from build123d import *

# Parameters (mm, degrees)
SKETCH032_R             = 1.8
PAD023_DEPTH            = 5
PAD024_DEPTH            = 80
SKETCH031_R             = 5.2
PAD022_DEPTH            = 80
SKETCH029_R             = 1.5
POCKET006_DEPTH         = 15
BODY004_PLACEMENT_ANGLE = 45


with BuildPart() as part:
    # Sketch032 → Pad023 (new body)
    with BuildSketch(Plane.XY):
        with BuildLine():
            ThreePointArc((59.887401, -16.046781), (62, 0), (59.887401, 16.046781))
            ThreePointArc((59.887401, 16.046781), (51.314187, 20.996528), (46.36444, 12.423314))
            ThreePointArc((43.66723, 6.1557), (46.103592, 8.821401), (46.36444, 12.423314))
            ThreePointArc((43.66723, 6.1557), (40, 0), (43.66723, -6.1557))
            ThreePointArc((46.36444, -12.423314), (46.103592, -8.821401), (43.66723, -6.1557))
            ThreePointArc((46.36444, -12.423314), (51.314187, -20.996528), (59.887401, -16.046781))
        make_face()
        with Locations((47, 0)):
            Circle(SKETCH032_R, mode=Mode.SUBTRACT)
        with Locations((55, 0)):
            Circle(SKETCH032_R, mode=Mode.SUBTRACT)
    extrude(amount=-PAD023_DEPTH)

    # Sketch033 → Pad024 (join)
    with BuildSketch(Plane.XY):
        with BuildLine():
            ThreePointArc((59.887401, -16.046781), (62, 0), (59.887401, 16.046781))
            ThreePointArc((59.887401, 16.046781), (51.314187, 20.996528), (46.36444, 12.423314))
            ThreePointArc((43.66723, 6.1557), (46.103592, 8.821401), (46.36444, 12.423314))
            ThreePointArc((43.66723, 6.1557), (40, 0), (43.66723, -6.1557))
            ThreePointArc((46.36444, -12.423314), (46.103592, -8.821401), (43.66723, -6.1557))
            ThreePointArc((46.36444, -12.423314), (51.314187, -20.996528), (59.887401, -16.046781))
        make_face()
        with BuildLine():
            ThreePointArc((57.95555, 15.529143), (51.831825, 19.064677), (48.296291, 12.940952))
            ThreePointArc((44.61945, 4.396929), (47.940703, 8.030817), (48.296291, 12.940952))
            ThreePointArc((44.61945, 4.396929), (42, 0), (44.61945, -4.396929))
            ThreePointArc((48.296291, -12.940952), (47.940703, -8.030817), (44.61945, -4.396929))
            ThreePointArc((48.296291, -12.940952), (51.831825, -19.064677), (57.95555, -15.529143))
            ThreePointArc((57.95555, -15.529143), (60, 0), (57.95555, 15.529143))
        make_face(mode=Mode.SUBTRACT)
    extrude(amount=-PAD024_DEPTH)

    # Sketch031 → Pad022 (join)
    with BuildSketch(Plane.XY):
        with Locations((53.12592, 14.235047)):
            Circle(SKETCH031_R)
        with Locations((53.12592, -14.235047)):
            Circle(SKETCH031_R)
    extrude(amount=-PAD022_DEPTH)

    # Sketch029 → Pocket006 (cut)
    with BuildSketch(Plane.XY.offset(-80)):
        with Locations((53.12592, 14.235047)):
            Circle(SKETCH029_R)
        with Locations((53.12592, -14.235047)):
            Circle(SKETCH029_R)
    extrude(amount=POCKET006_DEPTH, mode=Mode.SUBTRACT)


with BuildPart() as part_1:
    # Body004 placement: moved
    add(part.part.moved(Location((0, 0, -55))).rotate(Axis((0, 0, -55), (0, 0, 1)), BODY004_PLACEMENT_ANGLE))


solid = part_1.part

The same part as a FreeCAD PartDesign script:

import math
import FreeCAD as App
import Part
import Sketcher
from FreeCAD import Vector
Q = App.Units.Quantity

doc = App.newDocument("Part")
body = doc.addObject("PartDesign::Body", "Body")

# Sketch on XY plane
sketch1 = body.newObject("Sketcher::SketchObject", "Sketch")
sketch1.AttachmentSupport = (doc.getObject("XY_Plane"), [""])
sketch1.MapMode = "FlatFace"
sketch1.addGeometry([
    Part.ArcOfCircle(Part.Circle(Vector(0, 0, 0), Vector(0, 0, 1), 62), math.radians(-15), math.radians(15)),  # 0
    Part.ArcOfCircle(Part.Circle(Vector(53.1, 14.2, 0), Vector(0, 0, 1), 7), math.radians(15), math.radians(195)),  # 1
    Part.ArcOfCircle(Part.Circle(Vector(41, 11, 0), Vector(0, 0, 1), 5.5), math.radians(-62), math.radians(15)),  # 2
    Part.ArcOfCircle(Part.Circle(Vector(47, 0, 0), Vector(0, 0, 1), 7), math.radians(118), math.radians(242)),  # 3
    Part.ArcOfCircle(Part.Circle(Vector(41, -11, 0), Vector(0, 0, 1), 5.5), math.radians(-15), math.radians(62)),  # 4
    Part.ArcOfCircle(Part.Circle(Vector(53.1, -14.2, 0), Vector(0, 0, 1), 7), math.radians(165), math.radians(345)),  # 5
    Part.Circle(Vector(47, 0, 0), Vector(0, 0, 1), 1.8),  # 6
    Part.Circle(Vector(55, 0, 0), Vector(0, 0, 1), 1.8),  # 7
], False)
sketch1.addConstraint([
    Sketcher.Constraint("Tangent", 0, 2, 1, 1),
    Sketcher.Constraint("Tangent", 1, 2, 2, 2),
    Sketcher.Constraint("Tangent", 2, 1, 3, 1),
    Sketcher.Constraint("Tangent", 3, 2, 4, 2),
    Sketcher.Constraint("Tangent", 4, 1, 5, 1),
    Sketcher.Constraint("Tangent", 5, 2, 0, 1),
    Sketcher.Constraint("Coincident", 0, 3, -1, 1),
    Sketcher.Constraint("Coincident", 6, 3, 3, 3),
    Sketcher.Constraint("Equal", 1, 3),
    Sketcher.Constraint("Equal", 2, 4),
    Sketcher.Constraint("Equal", 3, 5),
    Sketcher.Constraint("Equal", 6, 7),
    Sketcher.Constraint("PointOnObject", 3, 3, -1),
    Sketcher.Constraint("PointOnObject", 7, 3, -1),
    Sketcher.Constraint("Vertical", 1, 3, 5, 3),
    Sketcher.Constraint("Radius", 1, Q("7 mm")),
    Sketcher.Constraint("Diameter", 6, Q("3.6 mm")),
    Sketcher.Constraint("DistanceX", -1, 1, 3, 3, Q("47 mm")),
    Sketcher.Constraint("DistanceX", -1, 1, 7, 3, Q("55 mm")),
    Sketcher.Constraint("Radius", 0, Q("61.999995 mm")),
    Sketcher.Constraint("Radius", 2, Q("5.506578 mm")),
    Sketcher.Constraint("DistanceX", -1, 1, 0, 2, Q("59.887401 mm")),
])
pad1 = body.newObject("PartDesign::Pad", "Pad")
pad1.Profile = sketch1
pad1.Length = 5
pad1.Reversed = True

# Sketch on XY plane
sketch2 = body.newObject("Sketcher::SketchObject", "Sketch001")
sketch2.AttachmentSupport = (doc.getObject("XY_Plane"), [""])
sketch2.MapMode = "FlatFace"
sketch2.addGeometry([
    Part.ArcOfCircle(Part.Circle(Vector(0, 0, 0), Vector(0, 0, 1), 62), math.radians(-15), math.radians(15)),  # 0
    Part.ArcOfCircle(Part.Circle(Vector(53, 14, 0), Vector(0, 0, 1), 7), math.radians(15), math.radians(195)),  # 1
    Part.ArcOfCircle(Part.Circle(Vector(41, 11, 0), Vector(0, 0, 1), 6), math.radians(-62), math.radians(15)),  # 2
    Part.ArcOfCircle(Part.Circle(Vector(47, 0, 0), Vector(0, 0, 1), 7), math.radians(118), math.radians(242)),  # 3
    Part.ArcOfCircle(Part.Circle(Vector(41, -11, 0), Vector(0, 0, 1), 6), math.radians(-15), math.radians(62)),  # 4
    Part.ArcOfCircle(Part.Circle(Vector(53, -14, 0), Vector(0, 0, 1), 7), math.radians(165), math.radians(345)),  # 5
    Part.ArcOfCircle(Part.Circle(Vector(53, 14, 0), Vector(0, 0, 1), 5), math.radians(15), math.radians(195)),  # 6
    Part.ArcOfCircle(Part.Circle(Vector(0, 0, 0), Vector(0, 0, 1), 60), math.radians(-15), math.radians(15)),  # 7
    Part.ArcOfCircle(Part.Circle(Vector(53, -14, 0), Vector(0, 0, 1), 5), math.radians(165), math.radians(345)),  # 8
    Part.ArcOfCircle(Part.Circle(Vector(41, -11, 0), Vector(0, 0, 1), 8), math.radians(-15), math.radians(62)),  # 9
    Part.ArcOfCircle(Part.Circle(Vector(47, 0, 0), Vector(0, 0, 1), 5), math.radians(118), math.radians(242)),  # 10
    Part.ArcOfCircle(Part.Circle(Vector(41, 11, 0), Vector(0, 0, 1), 8), math.radians(-62), math.radians(15)),  # 11
], False)
sketch2.addConstraint([
    Sketcher.Constraint("Tangent", 0, 2, 1, 1),
    Sketcher.Constraint("Tangent", 1, 2, 2, 2),
    Sketcher.Constraint("Tangent", 2, 1, 3, 1),
    Sketcher.Constraint("Tangent", 3, 2, 4, 2),
    Sketcher.Constraint("Tangent", 4, 1, 5, 1),
    Sketcher.Constraint("Tangent", 5, 2, 0, 1),
    Sketcher.Constraint("Tangent", 6, 1, 7, 2),
    Sketcher.Constraint("Tangent", 7, 1, 8, 2),
    Sketcher.Constraint("Tangent", 8, 1, 9, 1),
    Sketcher.Constraint("Tangent", 9, 2, 10, 2),
    Sketcher.Constraint("Tangent", 10, 1, 11, 1),
    Sketcher.Constraint("Tangent", 11, 2, 6, 2),
    Sketcher.Constraint("Coincident", 0, 3, -1, 1),
    Sketcher.Constraint("Coincident", 6, 3, 1, 3),
    Sketcher.Constraint("Coincident", 8, 3, 5, 3),
    Sketcher.Constraint("Coincident", 9, 3, 4, 3),
    Sketcher.Constraint("Coincident", 10, 3, 3, 3),
    Sketcher.Constraint("Coincident", 11, 3, 2, 3),
    Sketcher.Constraint("Equal", 1, 3),
    Sketcher.Constraint("Equal", 2, 4),
    Sketcher.Constraint("Equal", 3, 5),
    Sketcher.Constraint("PointOnObject", 3, 3, -1),
    Sketcher.Constraint("Vertical", 1, 3, 5, 3),
    Sketcher.Constraint("Radius", 1, Q("7 mm")),
    Sketcher.Constraint("Radius", 6, Q("5 mm")),
    Sketcher.Constraint("DistanceX", -1, 1, 3, 3, Q("47 mm")),
    Sketcher.Constraint("Radius", 0, Q("61.999995 mm")),
    Sketcher.Constraint("Radius", 2, Q("5.506578 mm")),
    Sketcher.Constraint("Radius", 7, Q("60.000014 mm")),
    Sketcher.Constraint("DistanceX", -1, 1, 0, 2, Q("59.887401 mm")),
])
pad2 = body.newObject("PartDesign::Pad", "Pad001")
pad2.Profile = sketch2
pad2.Length = 80
pad2.Reversed = True

# Sketch on XY plane
sketch3 = body.newObject("Sketcher::SketchObject", "Sketch002")
sketch3.AttachmentSupport = (doc.getObject("XY_Plane"), [""])
sketch3.MapMode = "FlatFace"
sketch3.addGeometry([
    Part.Circle(Vector(53, 14, 0), Vector(0, 0, 1), 5),
    Part.Circle(Vector(53, -14, 0), Vector(0, 0, 1), 5),
], False)
sketch3.addConstraint([
    Sketcher.Constraint("Equal", 0, 1),
    Sketcher.Constraint("Symmetric", 0, 3, 1, 3, -1),
    Sketcher.Constraint("Diameter", 0, Q("10.4 mm")),
    Sketcher.Constraint("DistanceX", -1, 1, 0, 3, Q("53.12592 mm")),
    Sketcher.Constraint("DistanceY", -1, 1, 0, 3, Q("14.235047 mm")),
])
pad3 = body.newObject("PartDesign::Pad", "Pad002")
pad3.Profile = sketch3
pad3.Length = 80
pad3.Reversed = True

# Sketch on XY plane
sketch4 = body.newObject("Sketcher::SketchObject", "Sketch003")
sketch4.AttachmentSupport = (doc.getObject("XY_Plane"), [""])
sketch4.MapMode = "FlatFace"
sketch4.AttachmentOffset = App.Placement(Vector(0, 0, -80), App.Rotation())
sketch4.addGeometry([
    Part.Circle(Vector(53.1, 14.2, 0), Vector(0, 0, 1), 1.5),
    Part.Circle(Vector(53.1, -14.2, 0), Vector(0, 0, 1), 1.5),
], False)
sketch4.addConstraint([
    Sketcher.Constraint("Equal", 0, 1),
    Sketcher.Constraint("Symmetric", 0, 3, 1, 3, -1),
    Sketcher.Constraint("Diameter", 0, Q("3 mm")),
    Sketcher.Constraint("DistanceX", -1, 1, 0, 3, Q("53.12592 mm")),
    Sketcher.Constraint("DistanceY", -1, 1, 0, 3, Q("14.235047 mm")),
])
pocket1 = body.newObject("PartDesign::Pocket", "Pocket")
pocket1.Profile = sketch4
pocket1.Length = 15
pocket1.Reversed = True
body2 = doc.addObject("PartDesign::Body", "Body001")
doc.recompute()

body.Placement = App.Placement(Vector(0, 0, -55), App.Rotation(Vector(0, 0, 1), 45))
boolean = body2.newObject("PartDesign::Boolean", "Boolean")
boolean.Type = "Fuse"
boolean.addObjects([body])

doc.recompute()
